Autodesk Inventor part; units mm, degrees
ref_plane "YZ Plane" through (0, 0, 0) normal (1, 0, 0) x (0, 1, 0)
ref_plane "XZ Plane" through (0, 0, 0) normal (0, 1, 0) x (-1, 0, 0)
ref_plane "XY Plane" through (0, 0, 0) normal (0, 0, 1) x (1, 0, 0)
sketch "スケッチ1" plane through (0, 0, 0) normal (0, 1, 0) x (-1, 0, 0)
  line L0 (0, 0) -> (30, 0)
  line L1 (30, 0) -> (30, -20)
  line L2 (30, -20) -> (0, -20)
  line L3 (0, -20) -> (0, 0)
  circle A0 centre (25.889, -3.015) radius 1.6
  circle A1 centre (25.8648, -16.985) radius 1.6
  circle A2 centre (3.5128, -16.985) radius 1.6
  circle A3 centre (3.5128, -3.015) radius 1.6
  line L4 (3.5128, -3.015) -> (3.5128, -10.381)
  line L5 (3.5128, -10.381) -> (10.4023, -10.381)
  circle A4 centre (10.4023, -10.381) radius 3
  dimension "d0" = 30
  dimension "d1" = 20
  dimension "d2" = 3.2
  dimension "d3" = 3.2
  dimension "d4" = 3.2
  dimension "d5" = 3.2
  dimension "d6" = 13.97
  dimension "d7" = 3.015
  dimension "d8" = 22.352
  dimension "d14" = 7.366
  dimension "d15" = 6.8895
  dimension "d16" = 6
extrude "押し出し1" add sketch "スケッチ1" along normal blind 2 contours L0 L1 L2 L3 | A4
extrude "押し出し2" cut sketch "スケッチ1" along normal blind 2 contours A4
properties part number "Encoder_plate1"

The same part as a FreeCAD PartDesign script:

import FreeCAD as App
import Part
import Sketcher

doc = App.newDocument("Part")
body = doc.addObject("PartDesign::Body", "Body")

# Sketch on XZ plane
sketch1 = body.newObject("Sketcher::SketchObject", "Sketch")
sketch1.AttachmentSupport = (doc.getObject("XZ_Plane"), [""])
sketch1.MapMode = "FlatFace"
sketch1.addGeometry([
    Part.LineSegment(App.Vector(-30, 0, 0), App.Vector(0, 0, 0)),  # 0
    Part.LineSegment(App.Vector(0, 0, 0), App.Vector(0, -20, 0)),  # 1
    Part.LineSegment(App.Vector(0, -20, 0), App.Vector(-30, -20, 0)),  # 2
    Part.LineSegment(App.Vector(-30, -20, 0), App.Vector(-30, 0, 0)),  # 3
    Part.Circle(App.Vector(-3.5, -17, 0), App.Vector(0, 0, 1), 1.6),  # 4
    Part.Circle(App.Vector(-25.9, -17, 0), App.Vector(0, 0, 1), 1.6),  # 5
    Part.Circle(App.Vector(-3.5, -3, 0), App.Vector(0, 0, 1), 1.6),  # 6
    Part.Circle(App.Vector(-25.9, -3, 0), App.Vector(0, 0, 1), 1.6),  # 7
], False)
sketch1.addConstraint([
    Sketcher.Constraint("Coincident", 0, 2, 1, 1),
    Sketcher.Constraint("Coincident", 1, 2, 2, 1),
    Sketcher.Constraint("Coincident", 2, 2, 3, 1),
    Sketcher.Constraint("Coincident", 3, 2, 0, 1),
    Sketcher.Constraint("Horizontal", 0),
    Sketcher.Constraint("Vertical", 1),
    Sketcher.Constraint("Horizontal", 2),
    Sketcher.Constraint("Vertical", 3),
    Sketcher.Constraint("Coincident", 0, 2, -1, 1),
    Sketcher.Constraint("Equal", 4, 5),
    Sketcher.Constraint("Equal", 5, 6),
    Sketcher.Constraint("Equal", 6, 7),
    Sketcher.Constraint("Horizontal", 4, 3, 5, 3),
    Sketcher.Constraint("Horizontal", 6, 3, 7, 3),
    Sketcher.Constraint("Vertical", 4, 3, 6, 3),
    Sketcher.Constraint("Diameter", 4, 3.2),
    Sketcher.Constraint("DistanceX", 0, 1, 0, 2, 30.0),
    Sketcher.Constraint("DistanceY", 1, 2, 1, 1, 20.0),
    Sketcher.Constraint("DistanceY", 4, 3, 6, 3, 13.97),
    Sketcher.Constraint("DistanceY", 6, 3, -1, 1, 3.015),
    Sketcher.Constraint("DistanceX", 5, 3, 4, 3, 22.352),
    Sketcher.Constraint("DistanceX", 7, 3, -1, 1, 25.889),
    Sketcher.Constraint("DistanceX", 4, 3, -1, 1, 3.5128),
])
pad1 = body.newObject("PartDesign::Pad", "Pad")
pad1.Profile = sketch1
pad1.Length = 2
pad1.Reversed = True

# Sketch on XZ plane
sketch2 = body.newObject("Sketcher::SketchObject", "Sketch001")
sketch2.AttachmentSupport = (doc.getObject("XZ_Plane"), [""])
sketch2.MapMode = "FlatFace"
sketch2.addGeometry(Part.Circle(App.Vector(-10.4, -10.4, 0), App.Vector(0, 0, 1), 3), False)
sketch2.addConstraint([
    Sketcher.Constraint("Diameter", 0, 6.0),
    Sketcher.Constraint("DistanceY", 0, 3, -1, 1, 10.381),
    Sketcher.Constraint("DistanceX", 0, 3, -1, 1, 10.4023),
])
pocket1 = body.newObject("PartDesign::Pocket", "Pocket")
pocket1.Profile = sketch2
pocket1.Length = 2

doc.recompute()
